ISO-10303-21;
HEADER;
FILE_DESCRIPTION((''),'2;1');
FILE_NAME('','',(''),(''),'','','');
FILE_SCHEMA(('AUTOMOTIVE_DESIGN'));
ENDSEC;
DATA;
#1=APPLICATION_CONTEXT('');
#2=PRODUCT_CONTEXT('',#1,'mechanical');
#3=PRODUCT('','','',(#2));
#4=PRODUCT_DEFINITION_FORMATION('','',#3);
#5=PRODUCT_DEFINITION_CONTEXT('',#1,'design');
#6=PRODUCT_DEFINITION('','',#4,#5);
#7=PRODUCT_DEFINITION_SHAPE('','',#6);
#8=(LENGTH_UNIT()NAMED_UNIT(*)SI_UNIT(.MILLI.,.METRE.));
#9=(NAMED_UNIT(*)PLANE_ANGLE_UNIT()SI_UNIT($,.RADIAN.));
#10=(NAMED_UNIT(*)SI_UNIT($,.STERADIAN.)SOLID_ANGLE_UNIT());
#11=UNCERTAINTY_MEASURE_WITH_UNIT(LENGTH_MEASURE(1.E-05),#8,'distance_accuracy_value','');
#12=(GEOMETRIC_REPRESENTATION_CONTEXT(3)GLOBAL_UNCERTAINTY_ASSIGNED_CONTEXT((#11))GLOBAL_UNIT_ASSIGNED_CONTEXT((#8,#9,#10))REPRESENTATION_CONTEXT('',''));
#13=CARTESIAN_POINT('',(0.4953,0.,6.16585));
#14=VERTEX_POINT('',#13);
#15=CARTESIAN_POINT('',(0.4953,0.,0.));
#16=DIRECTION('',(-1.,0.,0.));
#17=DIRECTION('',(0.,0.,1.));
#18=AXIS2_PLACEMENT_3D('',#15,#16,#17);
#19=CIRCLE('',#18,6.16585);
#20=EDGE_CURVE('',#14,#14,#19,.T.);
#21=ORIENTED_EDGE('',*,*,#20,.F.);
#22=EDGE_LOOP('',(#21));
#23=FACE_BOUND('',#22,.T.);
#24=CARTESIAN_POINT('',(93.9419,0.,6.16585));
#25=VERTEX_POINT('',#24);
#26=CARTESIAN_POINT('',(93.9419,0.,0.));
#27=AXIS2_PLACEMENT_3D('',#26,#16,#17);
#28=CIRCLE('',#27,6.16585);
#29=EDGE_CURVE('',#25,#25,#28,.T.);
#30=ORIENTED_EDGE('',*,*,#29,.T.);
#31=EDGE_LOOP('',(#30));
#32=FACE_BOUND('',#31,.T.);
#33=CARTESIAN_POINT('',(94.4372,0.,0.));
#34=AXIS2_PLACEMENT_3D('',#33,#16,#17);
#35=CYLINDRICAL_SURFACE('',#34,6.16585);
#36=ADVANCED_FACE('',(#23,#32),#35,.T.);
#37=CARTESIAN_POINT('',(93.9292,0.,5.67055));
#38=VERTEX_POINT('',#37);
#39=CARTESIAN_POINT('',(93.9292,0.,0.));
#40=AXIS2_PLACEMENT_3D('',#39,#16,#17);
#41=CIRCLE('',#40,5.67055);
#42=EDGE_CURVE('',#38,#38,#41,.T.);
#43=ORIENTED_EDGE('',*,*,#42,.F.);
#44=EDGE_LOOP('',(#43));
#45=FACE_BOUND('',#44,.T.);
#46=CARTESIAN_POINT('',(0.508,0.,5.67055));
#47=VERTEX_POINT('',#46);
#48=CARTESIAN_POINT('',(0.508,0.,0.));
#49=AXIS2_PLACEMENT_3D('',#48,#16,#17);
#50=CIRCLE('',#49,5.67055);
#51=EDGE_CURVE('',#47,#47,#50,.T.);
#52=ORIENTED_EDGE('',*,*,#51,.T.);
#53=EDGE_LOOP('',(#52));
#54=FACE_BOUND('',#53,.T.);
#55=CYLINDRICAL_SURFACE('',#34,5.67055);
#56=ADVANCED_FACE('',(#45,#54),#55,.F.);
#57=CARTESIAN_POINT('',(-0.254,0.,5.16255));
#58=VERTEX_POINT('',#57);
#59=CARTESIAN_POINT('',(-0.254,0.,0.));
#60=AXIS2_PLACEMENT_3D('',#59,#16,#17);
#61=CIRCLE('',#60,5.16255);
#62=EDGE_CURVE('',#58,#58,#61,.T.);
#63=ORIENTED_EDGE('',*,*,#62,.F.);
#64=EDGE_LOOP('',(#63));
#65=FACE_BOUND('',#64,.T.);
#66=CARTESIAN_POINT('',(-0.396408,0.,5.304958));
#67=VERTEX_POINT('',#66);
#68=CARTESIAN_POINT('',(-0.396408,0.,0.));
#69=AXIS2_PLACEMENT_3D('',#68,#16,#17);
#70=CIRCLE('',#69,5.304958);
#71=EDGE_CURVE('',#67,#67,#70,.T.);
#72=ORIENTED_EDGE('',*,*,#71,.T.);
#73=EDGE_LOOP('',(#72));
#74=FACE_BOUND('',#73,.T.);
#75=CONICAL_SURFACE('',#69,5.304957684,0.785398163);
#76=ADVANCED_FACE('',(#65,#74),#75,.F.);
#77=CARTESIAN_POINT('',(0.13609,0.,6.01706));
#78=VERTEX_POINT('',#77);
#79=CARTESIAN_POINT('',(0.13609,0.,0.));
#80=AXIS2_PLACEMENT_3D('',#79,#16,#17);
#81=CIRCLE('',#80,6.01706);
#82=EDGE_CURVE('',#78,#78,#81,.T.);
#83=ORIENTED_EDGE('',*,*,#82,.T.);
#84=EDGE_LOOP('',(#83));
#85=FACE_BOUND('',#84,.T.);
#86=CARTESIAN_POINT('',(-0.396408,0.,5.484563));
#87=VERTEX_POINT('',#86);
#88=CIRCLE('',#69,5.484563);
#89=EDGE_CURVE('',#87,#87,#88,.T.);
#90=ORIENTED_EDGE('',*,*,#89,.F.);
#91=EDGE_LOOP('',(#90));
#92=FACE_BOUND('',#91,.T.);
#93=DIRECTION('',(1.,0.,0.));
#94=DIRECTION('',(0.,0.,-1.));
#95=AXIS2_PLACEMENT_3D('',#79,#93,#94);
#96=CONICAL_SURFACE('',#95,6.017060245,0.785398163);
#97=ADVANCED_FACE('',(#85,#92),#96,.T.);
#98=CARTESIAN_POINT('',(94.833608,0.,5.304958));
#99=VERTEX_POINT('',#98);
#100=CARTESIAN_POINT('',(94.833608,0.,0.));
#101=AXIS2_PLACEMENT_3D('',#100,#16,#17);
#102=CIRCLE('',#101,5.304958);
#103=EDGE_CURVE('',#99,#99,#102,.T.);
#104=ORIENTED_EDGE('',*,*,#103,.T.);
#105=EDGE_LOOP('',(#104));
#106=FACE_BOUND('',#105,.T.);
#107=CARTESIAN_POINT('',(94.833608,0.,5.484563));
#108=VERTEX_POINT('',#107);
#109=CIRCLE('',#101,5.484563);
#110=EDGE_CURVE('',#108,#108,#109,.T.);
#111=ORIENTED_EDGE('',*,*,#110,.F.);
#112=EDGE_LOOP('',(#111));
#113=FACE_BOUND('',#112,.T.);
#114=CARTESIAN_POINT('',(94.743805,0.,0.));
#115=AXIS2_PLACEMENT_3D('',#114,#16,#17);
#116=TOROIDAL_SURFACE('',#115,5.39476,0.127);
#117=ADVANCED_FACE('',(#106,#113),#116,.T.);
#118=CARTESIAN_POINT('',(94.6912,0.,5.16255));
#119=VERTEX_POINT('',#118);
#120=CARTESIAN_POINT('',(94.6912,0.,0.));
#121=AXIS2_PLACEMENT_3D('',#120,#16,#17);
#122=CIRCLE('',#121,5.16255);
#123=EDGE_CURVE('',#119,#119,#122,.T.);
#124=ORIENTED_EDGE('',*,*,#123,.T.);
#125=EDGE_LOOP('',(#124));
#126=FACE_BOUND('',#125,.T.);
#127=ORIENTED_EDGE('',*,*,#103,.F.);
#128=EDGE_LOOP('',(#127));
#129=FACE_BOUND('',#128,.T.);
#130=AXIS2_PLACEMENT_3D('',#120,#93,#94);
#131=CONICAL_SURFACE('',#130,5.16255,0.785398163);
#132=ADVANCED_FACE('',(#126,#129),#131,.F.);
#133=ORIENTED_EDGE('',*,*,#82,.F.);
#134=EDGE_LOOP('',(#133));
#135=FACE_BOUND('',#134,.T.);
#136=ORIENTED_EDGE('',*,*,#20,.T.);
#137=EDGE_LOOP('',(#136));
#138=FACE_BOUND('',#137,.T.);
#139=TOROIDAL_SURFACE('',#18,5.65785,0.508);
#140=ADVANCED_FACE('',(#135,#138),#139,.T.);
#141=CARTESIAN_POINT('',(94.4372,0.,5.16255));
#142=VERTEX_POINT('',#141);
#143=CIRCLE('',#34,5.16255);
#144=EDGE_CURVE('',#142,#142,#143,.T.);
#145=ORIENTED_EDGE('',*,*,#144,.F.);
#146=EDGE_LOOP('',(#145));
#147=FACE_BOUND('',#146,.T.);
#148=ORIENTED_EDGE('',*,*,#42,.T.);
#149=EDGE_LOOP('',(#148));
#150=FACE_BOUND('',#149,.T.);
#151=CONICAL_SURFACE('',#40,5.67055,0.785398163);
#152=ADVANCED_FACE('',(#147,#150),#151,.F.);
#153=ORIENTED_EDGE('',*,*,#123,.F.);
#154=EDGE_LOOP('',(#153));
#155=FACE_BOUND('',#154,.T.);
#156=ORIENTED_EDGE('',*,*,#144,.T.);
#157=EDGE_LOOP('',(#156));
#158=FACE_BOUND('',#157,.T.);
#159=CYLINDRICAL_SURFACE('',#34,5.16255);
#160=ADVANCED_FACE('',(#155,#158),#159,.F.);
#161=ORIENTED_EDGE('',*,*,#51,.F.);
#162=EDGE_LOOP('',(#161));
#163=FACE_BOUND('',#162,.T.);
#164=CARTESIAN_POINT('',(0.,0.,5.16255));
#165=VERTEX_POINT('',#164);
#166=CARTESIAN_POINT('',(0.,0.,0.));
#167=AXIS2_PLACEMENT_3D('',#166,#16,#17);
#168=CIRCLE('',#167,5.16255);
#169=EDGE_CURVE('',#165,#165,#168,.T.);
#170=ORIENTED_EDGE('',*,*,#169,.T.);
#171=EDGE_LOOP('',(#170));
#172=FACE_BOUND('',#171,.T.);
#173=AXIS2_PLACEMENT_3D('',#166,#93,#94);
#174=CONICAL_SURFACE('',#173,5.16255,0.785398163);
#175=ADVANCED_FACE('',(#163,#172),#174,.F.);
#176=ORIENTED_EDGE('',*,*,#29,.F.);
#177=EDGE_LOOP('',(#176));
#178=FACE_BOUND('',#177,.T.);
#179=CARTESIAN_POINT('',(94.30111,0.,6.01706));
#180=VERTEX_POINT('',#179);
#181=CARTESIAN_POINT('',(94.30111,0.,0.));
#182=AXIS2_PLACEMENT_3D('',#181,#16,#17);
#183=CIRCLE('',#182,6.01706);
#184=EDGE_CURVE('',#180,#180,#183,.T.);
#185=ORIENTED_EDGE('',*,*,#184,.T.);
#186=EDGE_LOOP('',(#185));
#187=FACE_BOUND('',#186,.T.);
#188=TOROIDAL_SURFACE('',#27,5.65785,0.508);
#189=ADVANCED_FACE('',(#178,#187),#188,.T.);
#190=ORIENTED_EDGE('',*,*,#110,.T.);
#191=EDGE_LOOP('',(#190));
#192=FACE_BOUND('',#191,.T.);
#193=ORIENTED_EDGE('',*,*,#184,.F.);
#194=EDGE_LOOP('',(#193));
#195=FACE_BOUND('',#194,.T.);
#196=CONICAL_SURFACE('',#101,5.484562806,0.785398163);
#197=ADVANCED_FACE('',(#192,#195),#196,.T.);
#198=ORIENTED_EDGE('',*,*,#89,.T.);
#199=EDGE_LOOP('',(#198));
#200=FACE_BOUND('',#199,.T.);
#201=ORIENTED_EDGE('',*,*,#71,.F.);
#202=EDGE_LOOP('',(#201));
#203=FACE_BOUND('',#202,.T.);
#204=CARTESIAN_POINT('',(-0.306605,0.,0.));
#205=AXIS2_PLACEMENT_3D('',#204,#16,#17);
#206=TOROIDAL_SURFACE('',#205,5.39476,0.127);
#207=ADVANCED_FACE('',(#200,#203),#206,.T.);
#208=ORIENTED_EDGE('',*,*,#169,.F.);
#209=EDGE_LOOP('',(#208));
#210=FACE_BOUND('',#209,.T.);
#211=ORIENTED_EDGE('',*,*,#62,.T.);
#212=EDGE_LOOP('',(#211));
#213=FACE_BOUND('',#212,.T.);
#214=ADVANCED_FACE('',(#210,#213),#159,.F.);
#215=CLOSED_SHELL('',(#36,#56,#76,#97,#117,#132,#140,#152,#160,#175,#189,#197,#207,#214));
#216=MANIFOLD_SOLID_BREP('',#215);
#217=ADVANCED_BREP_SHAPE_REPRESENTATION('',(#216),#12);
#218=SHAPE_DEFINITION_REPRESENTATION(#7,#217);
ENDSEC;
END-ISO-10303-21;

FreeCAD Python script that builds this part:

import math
import FreeCAD as App
import Part
import Sketcher
Q = App.Units.Quantity

doc = App.newDocument("Part")
body = doc.addObject("PartDesign::Body", "Body")

sketch1 = body.newObject("Sketcher::SketchObject", "Sketch")
sketch1.AttachmentSupport = (doc.getObject("XY_Plane"), [""])
sketch1.MapMode = "FlatFace"
sketch1.addGeometry(Part.LineSegment(App.Vector(-0.396408, 5.304958, 0), App.Vector(-0.254, 5.16255, 0)), False)
sketch1.addGeometry(Part.LineSegment(App.Vector(-0.254, 5.16255, 0), App.Vector(0, 5.16255, 0)), False)
sketch1.addGeometry(Part.LineSegment(App.Vector(0, 5.16255, 0), App.Vector(0.508, 5.67055, 0)), False)
sketch1.addGeometry(Part.LineSegment(App.Vector(0.508, 5.67055, 0), App.Vector(93.9292, 5.67055, 0)), False)
sketch1.addGeometry(Part.LineSegment(App.Vector(93.9292, 5.67055, 0), App.Vector(94.4372, 5.16255, 0)), False)
sketch1.addGeometry(Part.LineSegment(App.Vector(94.4372, 5.16255, 0), App.Vector(94.6912, 5.16255, 0)), False)
sketch1.addGeometry(Part.LineSegment(App.Vector(94.6912, 5.16255, 0), App.Vector(94.833608, 5.304958, 0)), False)
sketch1.addGeometry(Part.ArcOfCircle(Part.Circle(App.Vector(94.743805, 5.39476, 0), App.Vector(0, 0, 1), 0.127), math.radians(-44.999999), math.radians(44.999999)), False)
sketch1.addGeometry(Part.LineSegment(App.Vector(94.833608, 5.484563, 0), App.Vector(94.30111, 6.01706, 0)), False)
sketch1.addGeometry(Part.ArcOfCircle(Part.Circle(App.Vector(93.9419, 5.65785, 0), App.Vector(0, 0, 1), 0.508), math.radians(45), math.radians(90)), False)
sketch1.addGeometry(Part.LineSegment(App.Vector(93.9419, 6.16585, 0), App.Vector(0.4953, 6.16585, 0)), False)
sketch1.addGeometry(Part.ArcOfCircle(Part.Circle(App.Vector(0.4953, 5.65785, 0), App.Vector(0, 0, 1), 0.508), math.radians(90), math.radians(135)), False)
sketch1.addGeometry(Part.LineSegment(App.Vector(0.13609, 6.01706, 0), App.Vector(-0.396408, 5.484563, 0)), False)
sketch1.addGeometry(Part.ArcOfCircle(Part.Circle(App.Vector(-0.306605, 5.39476, 0), App.Vector(0, 0, 1), 0.127), math.radians(135.000001), math.radians(224.999999)), False)
sketch1.addConstraint(Sketcher.Constraint("Coincident", 0, 2, 1, 1))
sketch1.addConstraint(Sketcher.Constraint("Coincident", 1, 2, 2, 1))
sketch1.addConstraint(Sketcher.Constraint("Coincident", 2, 2, 3, 1))
sketch1.addConstraint(Sketcher.Constraint("Coincident", 3, 2, 4, 1))
sketch1.addConstraint(Sketcher.Constraint("Coincident", 4, 2, 5, 1))
sketch1.addConstraint(Sketcher.Constraint("Coincident", 5, 2, 6, 1))
sketch1.addConstraint(Sketcher.Constraint("Tangent", 6, 2, 7, 1))
sketch1.addConstraint(Sketcher.Constraint("Tangent", 7, 2, 8, 1))
sketch1.addConstraint(Sketcher.Constraint("Tangent", 8, 2, 9, 1))
sketch1.addConstraint(Sketcher.Constraint("Tangent", 9, 2, 10, 1))
sketch1.addConstraint(Sketcher.Constraint("Tangent", 10, 2, 11, 1))
sketch1.addConstraint(Sketcher.Constraint("Tangent", 11, 2, 12, 1))
sketch1.addConstraint(Sketcher.Constraint("Tangent", 12, 2, 13, 1))
sketch1.addConstraint(Sketcher.Constraint("Tangent", 13, 2, 0, 1))
sketch1.addConstraint(Sketcher.Constraint("Horizontal", 1))
sketch1.addConstraint(Sketcher.Constraint("Horizontal", 3))
sketch1.addConstraint(Sketcher.Constraint("Horizontal", 5))
sketch1.addConstraint(Sketcher.Constraint("Horizontal", 10))
sketch1.addConstraint(Sketcher.Constraint("Equal", 9, 11))
sketch1.addConstraint(Sketcher.Constraint("Equal", 7, 13))
sketch1.addConstraint(Sketcher.Constraint("PointOnObject", 1, 2, -2))
sketch1.addConstraint(Sketcher.Constraint("Perpendicular", 0, 2))
sketch1.addConstraint(Sketcher.Constraint("Perpendicular", 2, 4))
sketch1.addConstraint(Sketcher.Constraint("Perpendicular", 4, 6))
sketch1.addConstraint(Sketcher.Constraint("Perpendicular", 6, 8))
sketch1.addConstraint(Sketcher.Constraint("Perpendicular", 8, 12))
sketch1.addConstraint(Sketcher.Constraint("Horizontal", 7, 3, 13, 3))
sketch1.addConstraint(Sketcher.Constraint("Horizontal", 1, 2, 4, 2))
sketch1.addConstraint(Sketcher.Constraint("Horizontal", 8, 2, 11, 2))
sketch1.addConstraint(Sketcher.Constraint("Equal", 1, 5))
sketch1.addConstraint(Sketcher.Constraint("Radius", 9, Q("0.02 in")))
sketch1.addConstraint(Sketcher.Constraint("Radius", 7, Q("0.005 in")))
sketch1.addConstraint(Sketcher.Constraint("DistanceX", 1, 1, 1, 2, Q("0.01 in")))
sketch1.addConstraint(Sketcher.Constraint("DistanceX", 3, 1, 3, 2, Q("3.678 in")))
sketch1.addConstraint(Sketcher.Constraint("DistanceX", 10, 2, 10, 1, Q("3.679 in")))
sketch1.addConstraint(Sketcher.Constraint("DistanceX", -1, 1, 2, 2, Q("0.02 in")))
sketch1.addConstraint(Sketcher.Constraint("DistanceY", 0, 2, 11, 3, Q("0.0195 in")))
sketch1.addConstraint(Sketcher.Constraint("DistanceY", -1, 1, 7, 3, Q("5.39476 mm")))
revolution = body.newObject("PartDesign::Revolution", "Revolution")
revolution.Profile = sketch1
revolution.ReferenceAxis = (sketch1, ["H_Axis"])
revolution.Angle = 360

doc.recompute()
